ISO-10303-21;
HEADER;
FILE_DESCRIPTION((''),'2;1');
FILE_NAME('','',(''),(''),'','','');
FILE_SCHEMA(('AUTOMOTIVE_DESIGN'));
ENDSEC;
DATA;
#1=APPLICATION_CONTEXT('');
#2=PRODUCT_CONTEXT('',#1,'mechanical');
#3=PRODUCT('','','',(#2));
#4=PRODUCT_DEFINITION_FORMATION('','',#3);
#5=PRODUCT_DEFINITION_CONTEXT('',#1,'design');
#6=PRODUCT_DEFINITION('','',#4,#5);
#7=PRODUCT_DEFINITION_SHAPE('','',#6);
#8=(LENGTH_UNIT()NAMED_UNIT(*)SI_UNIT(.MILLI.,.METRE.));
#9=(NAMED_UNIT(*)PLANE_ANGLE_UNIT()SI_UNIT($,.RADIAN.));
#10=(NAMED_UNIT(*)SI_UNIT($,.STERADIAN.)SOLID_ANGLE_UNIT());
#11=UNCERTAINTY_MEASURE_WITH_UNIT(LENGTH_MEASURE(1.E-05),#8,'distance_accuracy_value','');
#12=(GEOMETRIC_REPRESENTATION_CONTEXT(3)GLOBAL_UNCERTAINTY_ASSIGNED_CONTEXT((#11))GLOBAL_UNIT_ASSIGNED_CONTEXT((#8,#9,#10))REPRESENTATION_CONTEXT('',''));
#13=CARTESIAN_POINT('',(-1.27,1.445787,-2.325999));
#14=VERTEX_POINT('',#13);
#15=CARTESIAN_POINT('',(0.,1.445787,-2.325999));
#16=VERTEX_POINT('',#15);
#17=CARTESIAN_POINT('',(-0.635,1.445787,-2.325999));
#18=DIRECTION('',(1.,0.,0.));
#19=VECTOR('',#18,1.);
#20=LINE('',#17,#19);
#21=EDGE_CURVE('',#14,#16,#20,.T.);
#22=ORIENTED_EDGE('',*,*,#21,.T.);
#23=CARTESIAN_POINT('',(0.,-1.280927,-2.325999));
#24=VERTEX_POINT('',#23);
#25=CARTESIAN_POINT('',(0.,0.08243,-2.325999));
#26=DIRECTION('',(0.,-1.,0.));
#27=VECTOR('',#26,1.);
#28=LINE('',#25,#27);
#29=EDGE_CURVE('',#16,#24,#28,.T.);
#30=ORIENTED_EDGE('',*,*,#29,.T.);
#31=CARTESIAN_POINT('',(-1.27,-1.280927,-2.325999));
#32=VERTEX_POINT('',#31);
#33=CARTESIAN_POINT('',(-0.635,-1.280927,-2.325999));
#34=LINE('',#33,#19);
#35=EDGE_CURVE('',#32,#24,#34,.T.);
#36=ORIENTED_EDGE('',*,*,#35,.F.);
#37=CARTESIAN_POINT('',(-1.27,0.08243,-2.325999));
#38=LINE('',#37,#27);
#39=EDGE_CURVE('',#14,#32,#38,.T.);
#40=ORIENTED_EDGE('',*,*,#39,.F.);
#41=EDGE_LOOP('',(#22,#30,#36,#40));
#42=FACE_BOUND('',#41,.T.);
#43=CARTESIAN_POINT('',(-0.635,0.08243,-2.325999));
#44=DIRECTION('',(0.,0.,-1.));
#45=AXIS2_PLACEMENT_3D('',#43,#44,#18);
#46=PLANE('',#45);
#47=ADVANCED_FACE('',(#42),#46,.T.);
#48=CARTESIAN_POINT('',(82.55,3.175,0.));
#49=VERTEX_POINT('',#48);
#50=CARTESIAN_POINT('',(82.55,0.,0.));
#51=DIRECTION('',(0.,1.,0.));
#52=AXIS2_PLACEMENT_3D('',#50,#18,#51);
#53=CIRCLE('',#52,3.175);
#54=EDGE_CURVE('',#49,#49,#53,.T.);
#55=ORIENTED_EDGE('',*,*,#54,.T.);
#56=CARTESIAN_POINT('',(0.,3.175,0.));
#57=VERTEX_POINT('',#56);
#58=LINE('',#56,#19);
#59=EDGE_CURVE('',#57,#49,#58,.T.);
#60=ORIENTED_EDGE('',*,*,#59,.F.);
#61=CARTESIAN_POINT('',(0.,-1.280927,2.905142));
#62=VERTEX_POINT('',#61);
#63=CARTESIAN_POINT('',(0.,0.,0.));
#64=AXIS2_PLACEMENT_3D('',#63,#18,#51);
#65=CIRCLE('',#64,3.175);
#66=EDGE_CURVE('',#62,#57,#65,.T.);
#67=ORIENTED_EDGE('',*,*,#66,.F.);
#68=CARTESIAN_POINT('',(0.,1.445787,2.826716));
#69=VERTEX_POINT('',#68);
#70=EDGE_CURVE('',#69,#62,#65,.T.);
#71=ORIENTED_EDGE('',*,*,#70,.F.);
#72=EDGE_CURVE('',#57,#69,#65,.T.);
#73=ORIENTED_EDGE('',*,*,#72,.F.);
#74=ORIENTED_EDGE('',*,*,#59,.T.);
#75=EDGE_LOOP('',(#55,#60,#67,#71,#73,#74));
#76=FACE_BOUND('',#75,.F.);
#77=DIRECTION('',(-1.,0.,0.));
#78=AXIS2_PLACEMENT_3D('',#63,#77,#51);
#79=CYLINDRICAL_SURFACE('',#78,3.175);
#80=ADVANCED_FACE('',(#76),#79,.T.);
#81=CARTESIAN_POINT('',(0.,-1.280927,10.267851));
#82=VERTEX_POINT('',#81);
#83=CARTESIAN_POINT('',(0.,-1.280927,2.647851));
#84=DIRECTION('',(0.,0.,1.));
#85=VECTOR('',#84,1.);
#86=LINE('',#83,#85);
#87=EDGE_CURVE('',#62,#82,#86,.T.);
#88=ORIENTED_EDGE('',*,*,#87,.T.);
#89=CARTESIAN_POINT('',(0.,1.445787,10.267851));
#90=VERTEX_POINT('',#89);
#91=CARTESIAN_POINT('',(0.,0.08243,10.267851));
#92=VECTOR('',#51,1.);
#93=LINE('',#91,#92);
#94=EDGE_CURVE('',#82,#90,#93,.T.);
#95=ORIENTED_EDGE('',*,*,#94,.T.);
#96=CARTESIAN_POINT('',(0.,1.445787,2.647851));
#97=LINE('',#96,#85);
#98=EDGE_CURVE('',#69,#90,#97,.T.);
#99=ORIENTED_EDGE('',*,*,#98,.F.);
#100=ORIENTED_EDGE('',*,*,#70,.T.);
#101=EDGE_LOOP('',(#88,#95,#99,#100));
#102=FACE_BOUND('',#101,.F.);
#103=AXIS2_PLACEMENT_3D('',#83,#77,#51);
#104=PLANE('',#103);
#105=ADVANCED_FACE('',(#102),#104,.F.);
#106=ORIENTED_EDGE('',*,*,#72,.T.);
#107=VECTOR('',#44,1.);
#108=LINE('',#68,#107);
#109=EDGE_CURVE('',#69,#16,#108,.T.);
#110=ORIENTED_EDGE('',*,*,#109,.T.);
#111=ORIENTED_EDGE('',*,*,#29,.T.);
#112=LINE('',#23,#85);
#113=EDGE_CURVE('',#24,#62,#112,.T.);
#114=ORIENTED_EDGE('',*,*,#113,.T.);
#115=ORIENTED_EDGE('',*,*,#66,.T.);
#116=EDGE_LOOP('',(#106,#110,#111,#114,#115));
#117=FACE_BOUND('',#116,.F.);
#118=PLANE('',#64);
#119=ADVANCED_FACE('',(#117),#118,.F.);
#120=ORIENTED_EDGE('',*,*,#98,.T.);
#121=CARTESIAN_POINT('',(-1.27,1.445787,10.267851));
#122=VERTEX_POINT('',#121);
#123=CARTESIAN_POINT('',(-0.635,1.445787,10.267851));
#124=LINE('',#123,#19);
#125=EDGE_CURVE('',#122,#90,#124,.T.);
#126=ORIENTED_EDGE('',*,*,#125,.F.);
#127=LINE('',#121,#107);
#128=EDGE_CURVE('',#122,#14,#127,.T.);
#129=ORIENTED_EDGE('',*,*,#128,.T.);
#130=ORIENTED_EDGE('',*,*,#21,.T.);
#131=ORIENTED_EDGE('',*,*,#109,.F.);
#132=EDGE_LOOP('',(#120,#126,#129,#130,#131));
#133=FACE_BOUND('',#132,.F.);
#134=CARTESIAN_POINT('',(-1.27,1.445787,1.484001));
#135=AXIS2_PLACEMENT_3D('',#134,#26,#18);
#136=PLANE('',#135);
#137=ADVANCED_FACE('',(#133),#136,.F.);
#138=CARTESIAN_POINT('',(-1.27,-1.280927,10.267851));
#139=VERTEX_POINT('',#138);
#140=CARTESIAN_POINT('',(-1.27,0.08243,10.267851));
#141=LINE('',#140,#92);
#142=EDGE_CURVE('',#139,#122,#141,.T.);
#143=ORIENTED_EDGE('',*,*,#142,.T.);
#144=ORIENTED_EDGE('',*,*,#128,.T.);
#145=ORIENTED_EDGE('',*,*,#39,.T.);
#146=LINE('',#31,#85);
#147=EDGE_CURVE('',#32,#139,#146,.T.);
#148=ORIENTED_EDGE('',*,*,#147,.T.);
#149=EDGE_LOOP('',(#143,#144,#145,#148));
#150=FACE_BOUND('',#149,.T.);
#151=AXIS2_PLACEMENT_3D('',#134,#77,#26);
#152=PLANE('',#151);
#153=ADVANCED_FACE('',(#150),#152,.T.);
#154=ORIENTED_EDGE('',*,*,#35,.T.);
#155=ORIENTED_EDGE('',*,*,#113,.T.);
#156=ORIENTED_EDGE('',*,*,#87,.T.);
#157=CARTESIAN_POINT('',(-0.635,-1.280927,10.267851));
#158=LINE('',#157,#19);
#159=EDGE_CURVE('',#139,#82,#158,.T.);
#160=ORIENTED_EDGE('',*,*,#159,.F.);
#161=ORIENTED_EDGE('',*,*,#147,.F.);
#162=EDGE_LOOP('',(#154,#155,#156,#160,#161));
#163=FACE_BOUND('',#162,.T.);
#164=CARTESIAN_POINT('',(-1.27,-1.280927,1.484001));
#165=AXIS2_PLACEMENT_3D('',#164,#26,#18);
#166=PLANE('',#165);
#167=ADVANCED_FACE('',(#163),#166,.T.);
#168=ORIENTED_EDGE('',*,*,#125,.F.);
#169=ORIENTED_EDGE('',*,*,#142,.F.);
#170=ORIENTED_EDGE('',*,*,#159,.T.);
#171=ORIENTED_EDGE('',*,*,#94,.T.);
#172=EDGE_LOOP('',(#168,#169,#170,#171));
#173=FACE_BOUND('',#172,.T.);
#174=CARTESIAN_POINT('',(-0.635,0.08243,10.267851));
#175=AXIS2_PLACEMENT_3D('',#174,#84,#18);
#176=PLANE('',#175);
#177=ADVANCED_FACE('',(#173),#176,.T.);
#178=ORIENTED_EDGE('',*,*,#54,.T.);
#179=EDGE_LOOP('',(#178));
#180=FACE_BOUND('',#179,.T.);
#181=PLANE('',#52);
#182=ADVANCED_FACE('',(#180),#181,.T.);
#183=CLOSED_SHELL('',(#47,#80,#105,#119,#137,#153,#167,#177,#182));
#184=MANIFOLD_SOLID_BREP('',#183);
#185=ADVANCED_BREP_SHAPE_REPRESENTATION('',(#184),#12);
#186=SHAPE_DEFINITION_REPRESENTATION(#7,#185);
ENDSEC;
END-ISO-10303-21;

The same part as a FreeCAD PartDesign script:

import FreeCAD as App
import Part
import Sketcher
from FreeCAD import Vector
Q = App.Units.Quantity

doc = App.newDocument("Part")
body = doc.addObject("PartDesign::Body", "Body")

sketch1 = doc.addObject("Sketcher::SketchObject", "Sketch")
body.addObject(sketch1)
sketch1.AttachmentSupport = (doc.YZ_Plane, [""])
sketch1.MapMode = "FlatFace"
sketch1.addGeometry(Part.Circle(Vector(0, 0, 0), Vector(0, 0, 1), 3.175), False)
sketch1.addConstraint([
    Sketcher.Constraint("Coincident", 0, 3, -1, 1),
    Sketcher.Constraint("Diameter", 0, Q("0.25 in")),
])
pad1 = doc.addObject("PartDesign::Pad", "Pad")
body.addObject(pad1)
pad1.Profile = sketch1
pad1.Length = Q("3.25 in")

sketch2 = doc.addObject("Sketcher::SketchObject", "Sketch001")
body.addObject(sketch2)
sketch2.AttachmentSupport = (doc.YZ_Plane, [""])
sketch2.MapMode = "FlatFace"
sketch2.addGeometry([
    Part.LineSegment(Vector(-1.280927, 2.647851, 0), Vector(-1.280927, 1.484001, 0)),
    Part.LineSegment(Vector(-1.280927, 1.484001, 0), Vector(1.445787, 1.484001, 0)),
    Part.LineSegment(Vector(1.445787, 1.484001, 0), Vector(1.445787, 2.647851, 0)),
    Part.LineSegment(Vector(1.445787, 2.647851, 0), Vector(-1.280927, 2.647851, 0)),
], False)
sketch2.addConstraint([
    Sketcher.Constraint("Coincident", 0, 2, 1, 1),
    Sketcher.Constraint("Coincident", 1, 2, 2, 1),
    Sketcher.Constraint("Coincident", 2, 2, 3, 1),
    Sketcher.Constraint("Coincident", 3, 2, 0, 1),
    Sketcher.Constraint("Vertical", 0),
    Sketcher.Constraint("Horizontal", 1),
    Sketcher.Constraint("Vertical", 2),
    Sketcher.Constraint("Horizontal", 3),
    Sketcher.Constraint("DistanceY", 0, 2, 0, 1, 1.16385),
    Sketcher.Constraint("DistanceY", -1, 1, 0, 2, 1.484001),
    Sketcher.Constraint("DistanceX", 1, 1, 1, 2, 2.726714),
    Sketcher.Constraint("DistanceX", 0, 2, -1, 1, 1.280927),
])
pad2 = doc.addObject("PartDesign::Pad", "Pad001")
body.addObject(pad2)
pad2.Profile = sketch2
pad2.Length = Q("0.05 in")
pad2.Reversed = True

sketch3 = doc.addObject("Sketcher::SketchObject", "Sketch002")
body.addObject(sketch3)
sketch3.AttachmentSupport = (doc.XY_Plane, [""])
sketch3.MapMode = "FlatFace"
sketch3.AttachmentOffset = App.Placement(Vector(0, 0, 2.647851), App.Rotation())
sketch3.addGeometry([
    Part.LineSegment(Vector(-1.27, 1.445787, 0), Vector(-1.27, -1.280927, 0)),
    Part.LineSegment(Vector(-1.27, -1.280927, 0), Vector(0, -1.280927, 0)),
    Part.LineSegment(Vector(0, -1.280927, 0), Vector(0, 1.445787, 0)),
    Part.LineSegment(Vector(0, 1.445787, 0), Vector(-1.27, 1.445787, 0)),
], False)
sketch3.addConstraint([
    Sketcher.Constraint("Coincident", 0, 2, 1, 1),
    Sketcher.Constraint("Coincident", 1, 2, 2, 1),
    Sketcher.Constraint("Coincident", 2, 2, 3, 1),
    Sketcher.Constraint("Coincident", 3, 2, 0, 1),
    Sketcher.Constraint("Vertical", 0),
    Sketcher.Constraint("Horizontal", 1),
    Sketcher.Constraint("Vertical", 2),
    Sketcher.Constraint("Horizontal", 3),
    Sketcher.Constraint("PointOnObject", 1, 2, -2),
    Sketcher.Constraint("DistanceX", 1, 1, 1, 2, Q("0.05 in")),
    Sketcher.Constraint("DistanceY", 0, 2, 0, 1, 2.726714),
    Sketcher.Constraint("DistanceY", 0, 2, -1, 1, 1.280927),
])
pad3 = doc.addObject("PartDesign::Pad", "Pad002")
body.addObject(pad3)
pad3.Profile = sketch3
pad3.Length = Q("0.3 in")

sketch4 = doc.addObject("Sketcher::SketchObject", "Sketch003")
body.addObject(sketch4)
sketch4.AttachmentSupport = (doc.XY_Plane, [""])
sketch4.MapMode = "FlatFace"
sketch4.AttachmentOffset = App.Placement(Vector(0, 0, 1.484001), App.Rotation())
sketch4.addGeometry([
    Part.LineSegment(Vector(-1.27, -1.280927, 0), Vector(-1.27, 1.445787, 0)),
    Part.LineSegment(Vector(-1.27, 1.445787, 0), Vector(0, 1.445787, 0)),
    Part.LineSegment(Vector(0, 1.445787, 0), Vector(0, -1.280927, 0)),
    Part.LineSegment(Vector(0, -1.280927, 0), Vector(-1.27, -1.280927, 0)),
], False)
sketch4.addConstraint([
    Sketcher.Constraint("Coincident", 0, 2, 1, 1),
    Sketcher.Constraint("Coincident", 1, 2, 2, 1),
    Sketcher.Constraint("Coincident", 2, 2, 3, 1),
    Sketcher.Constraint("Coincident", 3, 2, 0, 1),
    Sketcher.Constraint("Vertical", 0),
    Sketcher.Constraint("Horizontal", 1),
    Sketcher.Constraint("Vertical", 2),
    Sketcher.Constraint("Horizontal", 3),
    Sketcher.Constraint("PointOnObject", 1, 2, -2),
    Sketcher.Constraint("DistanceX", 1, 1, 1, 2, Q("0.05 in")),
    Sketcher.Constraint("DistanceY", 0, 1, 0, 2, 2.726714),
    Sketcher.Constraint("DistanceY", -1, 1, 0, 2, 1.445787),
])
pad4 = doc.addObject("PartDesign::Pad", "Pad003")
body.addObject(pad4)
pad4.Profile = sketch4
pad4.Length = Q("0.15 in")
pad4.Reversed = True

doc.recompute()
